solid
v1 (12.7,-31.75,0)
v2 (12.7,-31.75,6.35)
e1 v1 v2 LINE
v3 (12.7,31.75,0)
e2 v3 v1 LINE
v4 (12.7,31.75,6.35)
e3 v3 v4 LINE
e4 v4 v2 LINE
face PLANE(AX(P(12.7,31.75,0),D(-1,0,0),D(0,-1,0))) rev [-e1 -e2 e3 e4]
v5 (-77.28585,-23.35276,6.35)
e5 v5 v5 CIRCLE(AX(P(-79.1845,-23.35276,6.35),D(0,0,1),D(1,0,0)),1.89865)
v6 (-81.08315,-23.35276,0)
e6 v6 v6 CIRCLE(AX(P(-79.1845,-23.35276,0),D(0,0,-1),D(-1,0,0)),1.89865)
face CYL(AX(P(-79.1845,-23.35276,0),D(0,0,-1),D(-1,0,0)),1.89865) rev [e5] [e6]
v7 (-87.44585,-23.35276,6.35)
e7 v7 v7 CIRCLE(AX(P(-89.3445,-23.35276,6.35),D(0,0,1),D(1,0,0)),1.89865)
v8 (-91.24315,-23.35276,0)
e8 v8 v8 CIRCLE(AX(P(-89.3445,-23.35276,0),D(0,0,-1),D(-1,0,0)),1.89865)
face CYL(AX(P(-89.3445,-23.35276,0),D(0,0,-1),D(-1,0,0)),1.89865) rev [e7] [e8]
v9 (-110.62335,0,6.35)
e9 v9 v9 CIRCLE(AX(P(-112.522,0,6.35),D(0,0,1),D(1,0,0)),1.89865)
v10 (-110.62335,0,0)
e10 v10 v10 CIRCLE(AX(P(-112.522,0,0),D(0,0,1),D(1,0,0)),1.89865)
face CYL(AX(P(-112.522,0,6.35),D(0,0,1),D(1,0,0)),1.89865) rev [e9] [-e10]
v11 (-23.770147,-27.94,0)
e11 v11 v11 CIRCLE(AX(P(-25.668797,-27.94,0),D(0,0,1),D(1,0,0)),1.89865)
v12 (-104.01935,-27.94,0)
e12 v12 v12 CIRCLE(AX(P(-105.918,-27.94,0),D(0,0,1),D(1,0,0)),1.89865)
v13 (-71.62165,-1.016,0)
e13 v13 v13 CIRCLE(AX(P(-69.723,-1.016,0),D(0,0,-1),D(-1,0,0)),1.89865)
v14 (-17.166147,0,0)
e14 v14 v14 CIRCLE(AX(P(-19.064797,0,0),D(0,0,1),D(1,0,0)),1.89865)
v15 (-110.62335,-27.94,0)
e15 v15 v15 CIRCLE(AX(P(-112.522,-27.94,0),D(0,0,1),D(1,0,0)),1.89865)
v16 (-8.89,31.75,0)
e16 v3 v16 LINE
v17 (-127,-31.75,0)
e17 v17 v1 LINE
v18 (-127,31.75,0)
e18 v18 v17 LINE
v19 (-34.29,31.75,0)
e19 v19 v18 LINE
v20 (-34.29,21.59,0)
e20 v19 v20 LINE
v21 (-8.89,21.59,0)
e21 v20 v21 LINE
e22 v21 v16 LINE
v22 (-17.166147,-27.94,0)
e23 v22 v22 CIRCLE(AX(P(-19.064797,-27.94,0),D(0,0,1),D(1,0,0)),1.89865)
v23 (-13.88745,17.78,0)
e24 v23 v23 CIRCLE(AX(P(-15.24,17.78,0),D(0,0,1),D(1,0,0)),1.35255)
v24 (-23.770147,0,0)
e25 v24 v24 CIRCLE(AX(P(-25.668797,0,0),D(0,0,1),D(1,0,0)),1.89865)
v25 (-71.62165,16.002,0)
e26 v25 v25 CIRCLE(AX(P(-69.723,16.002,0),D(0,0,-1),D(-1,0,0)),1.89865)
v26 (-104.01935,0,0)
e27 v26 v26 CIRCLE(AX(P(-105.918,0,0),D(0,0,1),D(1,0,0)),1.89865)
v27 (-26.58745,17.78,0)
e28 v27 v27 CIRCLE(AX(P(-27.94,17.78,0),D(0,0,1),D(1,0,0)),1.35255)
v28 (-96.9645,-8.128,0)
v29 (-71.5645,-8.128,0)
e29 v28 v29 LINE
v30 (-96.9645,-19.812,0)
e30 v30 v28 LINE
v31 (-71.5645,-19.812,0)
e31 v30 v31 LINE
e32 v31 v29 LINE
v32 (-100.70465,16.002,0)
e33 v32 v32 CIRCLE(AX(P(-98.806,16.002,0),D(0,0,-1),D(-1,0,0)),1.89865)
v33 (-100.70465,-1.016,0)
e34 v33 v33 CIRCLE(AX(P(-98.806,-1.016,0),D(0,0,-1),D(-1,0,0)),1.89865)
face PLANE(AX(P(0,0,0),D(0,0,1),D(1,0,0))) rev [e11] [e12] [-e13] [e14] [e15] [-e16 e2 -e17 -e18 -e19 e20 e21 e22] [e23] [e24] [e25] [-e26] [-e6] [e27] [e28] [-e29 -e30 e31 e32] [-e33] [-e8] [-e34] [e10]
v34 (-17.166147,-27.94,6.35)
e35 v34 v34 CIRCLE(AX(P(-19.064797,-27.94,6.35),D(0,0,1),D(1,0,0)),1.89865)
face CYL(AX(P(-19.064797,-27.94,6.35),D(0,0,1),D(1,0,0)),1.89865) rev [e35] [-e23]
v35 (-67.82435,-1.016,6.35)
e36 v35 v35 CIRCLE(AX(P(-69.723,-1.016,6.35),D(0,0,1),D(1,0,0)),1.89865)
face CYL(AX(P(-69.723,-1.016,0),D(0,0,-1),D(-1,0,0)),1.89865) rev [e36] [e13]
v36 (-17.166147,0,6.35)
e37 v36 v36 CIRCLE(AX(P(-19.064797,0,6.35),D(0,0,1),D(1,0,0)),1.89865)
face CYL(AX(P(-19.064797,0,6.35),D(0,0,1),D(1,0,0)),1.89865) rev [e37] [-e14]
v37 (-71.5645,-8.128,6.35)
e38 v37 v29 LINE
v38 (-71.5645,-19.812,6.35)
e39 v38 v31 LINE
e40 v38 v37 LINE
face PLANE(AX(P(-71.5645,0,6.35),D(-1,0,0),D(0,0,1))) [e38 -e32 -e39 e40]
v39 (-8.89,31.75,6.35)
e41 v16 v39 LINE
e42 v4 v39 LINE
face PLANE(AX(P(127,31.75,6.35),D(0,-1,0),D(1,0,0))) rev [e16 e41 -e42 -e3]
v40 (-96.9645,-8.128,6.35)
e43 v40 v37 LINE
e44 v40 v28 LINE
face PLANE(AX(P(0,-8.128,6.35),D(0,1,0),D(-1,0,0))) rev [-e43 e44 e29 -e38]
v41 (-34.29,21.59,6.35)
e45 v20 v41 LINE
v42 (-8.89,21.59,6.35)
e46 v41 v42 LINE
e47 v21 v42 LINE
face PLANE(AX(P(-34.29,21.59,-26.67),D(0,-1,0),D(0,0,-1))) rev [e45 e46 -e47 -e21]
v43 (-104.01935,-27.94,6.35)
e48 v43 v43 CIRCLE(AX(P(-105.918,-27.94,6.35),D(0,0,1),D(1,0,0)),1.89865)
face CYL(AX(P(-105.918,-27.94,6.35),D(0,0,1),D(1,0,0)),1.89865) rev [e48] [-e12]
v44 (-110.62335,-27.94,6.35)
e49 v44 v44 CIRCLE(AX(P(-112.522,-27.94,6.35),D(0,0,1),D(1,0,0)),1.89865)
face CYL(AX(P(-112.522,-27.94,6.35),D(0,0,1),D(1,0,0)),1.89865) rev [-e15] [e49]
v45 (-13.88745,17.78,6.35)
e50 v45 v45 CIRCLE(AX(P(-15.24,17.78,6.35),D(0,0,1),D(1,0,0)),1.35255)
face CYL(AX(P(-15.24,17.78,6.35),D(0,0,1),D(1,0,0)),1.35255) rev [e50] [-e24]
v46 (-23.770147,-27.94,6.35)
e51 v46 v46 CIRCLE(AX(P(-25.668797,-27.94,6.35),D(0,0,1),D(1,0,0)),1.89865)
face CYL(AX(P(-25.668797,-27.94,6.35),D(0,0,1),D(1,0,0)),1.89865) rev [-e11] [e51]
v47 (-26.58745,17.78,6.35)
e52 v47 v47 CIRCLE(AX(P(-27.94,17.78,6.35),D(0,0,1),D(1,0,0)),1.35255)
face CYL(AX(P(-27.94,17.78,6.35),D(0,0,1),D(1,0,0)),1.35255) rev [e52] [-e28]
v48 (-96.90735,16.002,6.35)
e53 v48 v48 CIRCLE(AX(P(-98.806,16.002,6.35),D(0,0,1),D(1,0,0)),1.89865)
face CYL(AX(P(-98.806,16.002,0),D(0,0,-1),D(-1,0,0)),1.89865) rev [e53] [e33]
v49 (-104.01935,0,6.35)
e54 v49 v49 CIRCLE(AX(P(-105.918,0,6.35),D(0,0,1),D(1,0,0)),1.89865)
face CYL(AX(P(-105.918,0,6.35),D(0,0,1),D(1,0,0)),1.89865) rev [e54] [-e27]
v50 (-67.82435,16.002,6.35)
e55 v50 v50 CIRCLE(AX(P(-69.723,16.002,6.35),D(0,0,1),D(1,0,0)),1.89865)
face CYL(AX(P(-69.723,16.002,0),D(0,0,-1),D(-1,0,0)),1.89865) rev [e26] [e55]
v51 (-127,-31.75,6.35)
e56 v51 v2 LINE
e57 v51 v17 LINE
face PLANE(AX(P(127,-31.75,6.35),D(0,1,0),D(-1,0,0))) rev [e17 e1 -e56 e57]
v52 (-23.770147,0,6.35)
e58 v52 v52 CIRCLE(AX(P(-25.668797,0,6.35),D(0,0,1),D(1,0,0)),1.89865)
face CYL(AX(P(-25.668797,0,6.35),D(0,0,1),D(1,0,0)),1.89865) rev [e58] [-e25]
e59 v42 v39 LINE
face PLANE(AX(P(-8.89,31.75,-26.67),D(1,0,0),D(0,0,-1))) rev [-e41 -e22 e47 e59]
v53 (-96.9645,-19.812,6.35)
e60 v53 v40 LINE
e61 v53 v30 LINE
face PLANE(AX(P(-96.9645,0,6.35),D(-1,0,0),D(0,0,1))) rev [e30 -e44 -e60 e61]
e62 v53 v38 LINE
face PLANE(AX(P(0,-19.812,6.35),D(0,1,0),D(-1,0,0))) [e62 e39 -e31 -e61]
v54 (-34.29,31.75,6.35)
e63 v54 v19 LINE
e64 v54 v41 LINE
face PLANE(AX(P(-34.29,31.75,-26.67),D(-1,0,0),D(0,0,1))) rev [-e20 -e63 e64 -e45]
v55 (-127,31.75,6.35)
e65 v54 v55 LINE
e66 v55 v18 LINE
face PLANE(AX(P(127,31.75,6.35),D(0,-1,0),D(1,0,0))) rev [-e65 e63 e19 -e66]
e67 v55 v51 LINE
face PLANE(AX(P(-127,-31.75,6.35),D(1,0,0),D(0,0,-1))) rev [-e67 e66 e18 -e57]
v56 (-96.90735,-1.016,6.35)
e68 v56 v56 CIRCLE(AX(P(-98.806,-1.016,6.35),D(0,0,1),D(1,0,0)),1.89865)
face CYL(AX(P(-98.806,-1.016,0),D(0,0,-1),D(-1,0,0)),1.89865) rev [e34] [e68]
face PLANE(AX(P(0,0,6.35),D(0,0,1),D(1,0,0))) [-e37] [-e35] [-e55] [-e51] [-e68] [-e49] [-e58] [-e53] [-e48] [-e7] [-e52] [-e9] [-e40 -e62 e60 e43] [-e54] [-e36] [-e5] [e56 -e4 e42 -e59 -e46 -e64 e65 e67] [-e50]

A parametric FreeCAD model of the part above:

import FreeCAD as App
import Part
import Sketcher

V = App.Vector
Q = App.Units.Quantity


def add_polygon(sketch, points):
    """Adds a closed chain of lines whose ends are joined by coincident constraints."""
    first, n = sketch.GeometryCount, len(points)
    for a, b in zip(points, points[1:] + points[:1]):
        sketch.addGeometry(Part.LineSegment(App.Vector(*a, 0), App.Vector(*b, 0)), False)
    for i in range(n):
        sketch.addConstraint(Sketcher.Constraint("Coincident", first + i, 2, first + (i + 1) % n, 1))

doc = App.newDocument("Part")
body = doc.addObject("PartDesign::Body", "Body")

sketch1 = doc.addObject("Sketcher::SketchObject", "Sketch")
body.addObject(sketch1)
sketch1.AttachmentSupport = (doc.XY_Plane, [""])
sketch1.MapMode = "FlatFace"
add_polygon(sketch1, [(-127, 32), (-127, -32), (127, -32), (127, 32)])
sketch1.addConstraint(Sketcher.Constraint("Vertical", 0))
sketch1.addConstraint(Sketcher.Constraint("Horizontal", 1))
sketch1.addConstraint(Sketcher.Constraint("Vertical", 2))
sketch1.addConstraint(Sketcher.Constraint("Horizontal", 3))
sketch1.addConstraint(Sketcher.Constraint("Symmetric", 0, 2, 2, 2, -1, 1))
sketch1.addConstraint(Sketcher.Constraint("DistanceX", 1, 1, 1, 2, Q("10 in")))
sketch1.addConstraint(Sketcher.Constraint("DistanceY", 0, 2, 0, 1, Q("2.5 in")))
pad1 = doc.addObject("PartDesign::Pad", "Pad")
body.addObject(pad1)
pad1.Profile = sketch1
pad1.Length = Q("0.25 in")

sketch2 = doc.addObject("Sketcher::SketchObject", "Sketch001")
body.addObject(sketch2)
sketch2.AttachmentSupport = (doc.XY_Plane, [""])
sketch2.MapMode = "FlatFace"
sketch2.AttachmentOffset = App.Placement(V(0, 0, 0.25 * 25.4), App.Rotation())
sketch2.addGeometry(Part.Circle(V(-105.9, 0, 0), V(0, 0, 1), 1.9), False)
sketch2.addGeometry(Part.Circle(V(-112.5, -27.9, 0), V(0, 0, 1), 1.9), False)
sketch2.addGeometry(Part.Circle(V(-112.5, 0, 0), V(0, 0, 1), 1.9), False)
sketch2.addGeometry(Part.Circle(V(-105.9, -27.9, 0), V(0, 0, 1), 1.9), False)
sketch2.addConstraint(Sketcher.Constraint("Equal", 0, 1))
sketch2.addConstraint(Sketcher.Constraint("Equal", 1, 2))
sketch2.addConstraint(Sketcher.Constraint("Equal", 2, 3))
sketch2.addConstraint(Sketcher.Constraint("PointOnObject", 0, 3, -1))
sketch2.addConstraint(Sketcher.Constraint("PointOnObject", 2, 3, -1))
sketch2.addConstraint(Sketcher.Constraint("Horizontal", 1, 3, 3, 3))
sketch2.addConstraint(Sketcher.Constraint("Vertical", 1, 3, 2, 3))
sketch2.addConstraint(Sketcher.Constraint("Vertical", 0, 3, 3, 3))
sketch2.addConstraint(Sketcher.Constraint("Diameter", 0, Q("0.1495 in")))
sketch2.addConstraint(Sketcher.Constraint("DistanceY", 1, 3, -1, 1, Q("1.1 in")))
sketch2.addConstraint(Sketcher.Constraint("DistanceX", 0, 3, -1, 1, Q("4.17 in")))
sketch2.addConstraint(Sketcher.Constraint("DistanceX", 1, 3, -1, 1, Q("4.43 in")))
doc.recompute()
hole = doc.addObject("PartDesign::Hole", "Hole")
body.addObject(hole)
hole.Profile = sketch2
hole.ThreadType = "None"
hole.Diameter = Q("0.1495 in")
hole.DepthType = "Dimension"
hole.Depth = Q("0.25 in")
hole.DrillPoint = "Angled"
hole.DrillPointAngle = 118

sketch3 = doc.addObject("Sketcher::SketchObject", "Sketch002")
body.addObject(sketch3)
sketch3.AttachmentSupport = (doc.XY_Plane, [""])
sketch3.MapMode = "FlatFace"
sketch3.addGeometry(Part.Circle(V(-98.8, -1, 0), V(0, 0, 1), 1.9), False)
sketch3.addGeometry(Part.Circle(V(-69.7, -1, 0), V(0, 0, 1), 1.9), False)
sketch3.addConstraint(Sketcher.Constraint("Equal", 0, 1))
sketch3.addConstraint(Sketcher.Constraint("Horizontal", 0, 3, 1, 3))
sketch3.addConstraint(Sketcher.Constraint("Diameter", 0, Q("0.1495 in")))
sketch3.addConstraint(Sketcher.Constraint("DistanceX", 0, 3, -1, 1, Q("3.89 in")))
sketch3.addConstraint(Sketcher.Constraint("DistanceY", 0, 3, -1, 1, Q("0.04 in")))
sketch3.addConstraint(Sketcher.Constraint("DistanceX", 1, 3, -1, 1, Q("2.745 in")))
doc.recompute()
hole2 = doc.addObject("PartDesign::Hole", "Hole001")
body.addObject(hole2)
hole2.Profile = sketch3
hole2.ThreadType = "None"
hole2.Diameter = Q("0.1495 in")
hole2.DepthType = "Dimension"
hole2.Depth = Q("0.3 in")
hole2.DrillPoint = "Angled"
hole2.DrillPointAngle = 118
hole2.Reversed = True

sketch4 = doc.addObject("Sketcher::SketchObject", "Sketch003")
body.addObject(sketch4)
sketch4.AttachmentSupport = (doc.XY_Plane, [""])
sketch4.MapMode = "FlatFace"
add_polygon(sketch4, [(-72, -8), (-72, -20), (-97, -20), (-97, -8)])
sketch4.addConstraint(Sketcher.Constraint("Vertical", 0))
sketch4.addConstraint(Sketcher.Constraint("Horizontal", 1))
sketch4.addConstraint(Sketcher.Constraint("Vertical", 2))
sketch4.addConstraint(Sketcher.Constraint("Horizontal", 3))
sketch4.addConstraint(Sketcher.Constraint("DistanceX", 1, 2, 1, 1, Q("1 in")))
sketch4.addConstraint(Sketcher.Constraint("DistanceY", 0, 2, 0, 1, Q("0.46 in")))
sketch4.addConstraint(Sketcher.Constraint("DistanceY", 0, 2, -1, 1, Q("0.78 in")))
sketch4.addConstraint(Sketcher.Constraint("DistanceX", 0, 2, -1, 1, Q("2.8175 in")))
pocket1 = doc.addObject("PartDesign::Pocket", "Pocket")
body.addObject(pocket1)
pocket1.Profile = sketch4
pocket1.Type = "ThroughAll"
pocket1.Reversed = True

sketch5 = doc.addObject("Sketcher::SketchObject", "Sketch004")
body.addObject(sketch5)
sketch5.AttachmentSupport = (doc.XY_Plane, [""])
sketch5.MapMode = "FlatFace"
sketch5.addGeometry(Part.Circle(V(-69.7, 16, 0), V(0, 0, 1), 1.9), False)
sketch5.addGeometry(Part.Circle(V(-98.8, 16, 0), V(0, 0, 1), 1.9), False)
sketch5.addConstraint(Sketcher.Constraint("Equal", 0, 1))
sketch5.addConstraint(Sketcher.Constraint("Horizontal", 0, 3, 1, 3))
sketch5.addConstraint(Sketcher.Constraint("Diameter", 0, Q("0.1495 in")))
sketch5.addConstraint(Sketcher.Constraint("DistanceY", -1, 1, 0, 3, Q("0.63 in")))
sketch5.addConstraint(Sketcher.Constraint("DistanceX", 1, 3, -1, 1, Q("3.89 in")))
sketch5.addConstraint(Sketcher.Constraint("DistanceX", 0, 3, -1, 1, Q("2.745 in")))
doc.recompute()
hole3 = doc.addObject("PartDesign::Hole", "Hole002")
body.addObject(hole3)
hole3.Profile = sketch5
hole3.ThreadType = "None"
hole3.Diameter = Q("0.1495 in")
hole3.DepthType = "Dimension"
hole3.Depth = Q("0.3 in")
hole3.DrillPoint = "Angled"
hole3.DrillPointAngle = 118
hole3.Reversed = True

sketch6 = doc.addObject("Sketcher::SketchObject", "Sketch005")
body.addObject(sketch6)
sketch6.AttachmentSupport = (doc.XY_Plane, [""])
sketch6.MapMode = "FlatFace"
sketch6.addGeometry(Part.Circle(V(-79.2, -23.4, 0), V(0, 0, 1), 1.9), False)
sketch6.addGeometry(Part.Circle(V(-89.3, -23.4, 0), V(0, 0, 1), 1.9), False)
sketch6.addConstraint(Sketcher.Constraint("Equal", 0, 1))
sketch6.addConstraint(Sketcher.Constraint("Horizontal", 0, 3, 1, 3))
sketch6.addConstraint(Sketcher.Constraint("Diameter", 0, Q("0.1495 in")))
sketch6.addConstraint(Sketcher.Constraint("DistanceX", 1, 3, 0, 3, Q("0.4 in")))
sketch6.addConstraint(Sketcher.Constraint("DistanceX", 0, 3, -1, 1, Q("3.1175 in")))
sketch6.addConstraint(Sketcher.Constraint("DistanceY", 0, 3, -1, 1, Q("0.9194 in")))
doc.recompute()
hole4 = doc.addObject("PartDesign::Hole", "Hole003")
body.addObject(hole4)
hole4.Profile = sketch6
hole4.ThreadType = "None"
hole4.Diameter = Q("0.1495 in")
hole4.DepthType = "Dimension"
hole4.Depth = Q("0.3 in")
hole4.DrillPoint = "Angled"
hole4.DrillPointAngle = 118
hole4.Reversed = True

sketch7 = doc.addObject("Sketcher::SketchObject", "Sketch006")
body.addObject(sketch7)
sketch7.AttachmentSupport = (doc.XY_Plane, [""])
sketch7.MapMode = "FlatFace"
sketch7.AttachmentOffset = App.Placement(V(0, 0, 0.25 * 25.4), App.Rotation())
add_polygon(sketch7, [(13, 32), (13, -32), (127, -32), (127, 32)])
sketch7.addConstraint(Sketcher.Constraint("Vertical", 0))
sketch7.addConstraint(Sketcher.Constraint("Horizontal", 1))
sketch7.addConstraint(Sketcher.Constraint("Vertical", 2))
sketch7.addConstraint(Sketcher.Constraint("Horizontal", 3))
sketch7.addConstraint(Sketcher.Constraint("DistanceX", 1, 1, 1, 2, Q("4.5 in")))
sketch7.addConstraint(Sketcher.Constraint("DistanceY", 0, 2, 0, 1, Q("2.5 in")))
sketch7.addConstraint(Sketcher.Constraint("DistanceX", -1, 1, 1, 2, Q("5 in")))
sketch7.addConstraint(Sketcher.Constraint("DistanceY", 0, 2, -1, 1, Q("1.25 in")))
pocket2 = doc.addObject("PartDesign::Pocket", "Pocket001")
body.addObject(pocket2)
pocket2.Profile = sketch7
pocket2.Type = "ThroughAll"

sketch8 = doc.addObject("Sketcher::SketchObject", "Sketch007")
body.addObject(sketch8)
sketch8.AttachmentSupport = (doc.XY_Plane, [""])
sketch8.MapMode = "FlatFace"
sketch8.AttachmentOffset = App.Placement(V(0, 0, 0.25 * 25.4), App.Rotation())
add_polygon(sketch8, [(-34, 32), (-34, 22), (-9, 22), (-9, 32)])
sketch8.addConstraint(Sketcher.Constraint("Vertical", 0))
sketch8.addConstraint(Sketcher.Constraint("Horizontal", 1))
sketch8.addConstraint(Sketcher.Constraint("Vertical", 2))
sketch8.addConstraint(Sketcher.Constraint("Horizontal", 3))
sketch8.addConstraint(Sketcher.Constraint("DistanceX", 1, 1, 1, 2, Q("1 in")))
sketch8.addConstraint(Sketcher.Constraint("DistanceY", 0, 2, 0, 1, Q("0.4 in")))
sketch8.addConstraint(Sketcher.Constraint("DistanceX", 0, 2, -1, 1, Q("1.35 in")))
sketch8.addConstraint(Sketcher.Constraint("DistanceY", -1, 1, 0, 2, Q("0.85 in")))
pocket3 = doc.addObject("PartDesign::Pocket", "Pocket002")
body.addObject(pocket3)
pocket3.Profile = sketch8
pocket3.Length = Q("1.3 in")

sketch9 = doc.addObject("Sketcher::SketchObject", "Sketch008")
body.addObject(sketch9)
sketch9.AttachmentSupport = (doc.XY_Plane, [""])
sketch9.MapMode = "FlatFace"
sketch9.AttachmentOffset = App.Placement(V(0, 0, 0.25 * 25.4), App.Rotation())
sketch9.addGeometry(Part.Circle(V(-27.9, 17.8, 0), V(0, 0, 1), 1.4), False)
sketch9.addGeometry(Part.Circle(V(-15.2, 17.8, 0), V(0, 0, 1), 1.4), False)
sketch9.addConstraint(Sketcher.Constraint("Equal", 0, 1))
sketch9.addConstraint(Sketcher.Constraint("Horizontal", 0, 3, 1, 3))
sketch9.addConstraint(Sketcher.Constraint("Diameter", 0, Q("0.1065 in")))
sketch9.addConstraint(Sketcher.Constraint("DistanceX", 0, 3, -1, 1, Q("1.1 in")))
sketch9.addConstraint(Sketcher.Constraint("DistanceY", -1, 1, 0, 3, Q("0.7 in")))
sketch9.addConstraint(Sketcher.Constraint("DistanceX", 1, 3, -1, 1, Q("0.6 in")))
doc.recompute()
hole5 = doc.addObject("PartDesign::Hole", "Hole004")
body.addObject(hole5)
hole5.Profile = sketch9
hole5.ThreadType = "None"
hole5.Diameter = Q("0.1065 in")
hole5.DepthType = "Dimension"
hole5.Depth = Q("0.4 in")
hole5.DrillPoint = "Angled"
hole5.DrillPointAngle = 118

sketch10 = doc.addObject("Sketcher::SketchObject", "Sketch009")
body.addObject(sketch10)
sketch10.AttachmentSupport = (doc.XY_Plane, [""])
sketch10.MapMode = "FlatFace"
sketch10.AttachmentOffset = App.Placement(V(0, 0, 0.25 * 25.4), App.Rotation())
sketch10.addGeometry(Part.Circle(V(-25.7, 0, 0), V(0, 0, 1), 1.9), False)
sketch10.addGeometry(Part.Circle(V(-19.1, 0, 0), V(0, 0, 1), 1.9), False)
sketch10.addGeometry(Part.Circle(V(-25.7, -27.9, 0), V(0, 0, 1), 1.9), False)
sketch10.addGeometry(Part.Circle(V(-19.1, -27.9, 0), V(0, 0, 1), 1.9), False)
sketch10.addConstraint(Sketcher.Constraint("Equal", 0, 1))
sketch10.addConstraint(Sketcher.Constraint("Equal", 1, 2))
sketch10.addConstraint(Sketcher.Constraint("Equal", 2, 3))
sketch10.addConstraint(Sketcher.Constraint("PointOnObject", 0, 3, -1))
sketch10.addConstraint(Sketcher.Constraint("PointOnObject", 1, 3, -1))
sketch10.addConstraint(Sketcher.Constraint("Horizontal", 2, 3, 3, 3))
sketch10.addConstraint(Sketcher.Constraint("Vertical", 0, 3, 2, 3))
sketch10.addConstraint(Sketcher.Constraint("Vertical", 1, 3, 3, 3))
sketch10.addConstraint(Sketcher.Constraint("Diameter", 0, Q("0.1495 in")))
sketch10.addConstraint(Sketcher.Constraint("DistanceY", 2, 3, -1, 1, Q("1.1 in")))
sketch10.addConstraint(Sketcher.Constraint("DistanceX", 0, 3, 1, 3, Q("0.26 in")))
sketch10.addConstraint(Sketcher.Constraint("DistanceX", 0, 3, -1, 1, 25.668797))
doc.recompute()
hole6 = doc.addObject("PartDesign::Hole", "Hole005")
body.addObject(hole6)
hole6.Profile = sketch10
hole6.ThreadType = "None"
hole6.Diameter = Q("0.1495 in")
hole6.DepthType = "Dimension"
hole6.Depth = Q("0.4 in")
hole6.DrillPoint = "Angled"
hole6.DrillPointAngle = 118

doc.recompute()
